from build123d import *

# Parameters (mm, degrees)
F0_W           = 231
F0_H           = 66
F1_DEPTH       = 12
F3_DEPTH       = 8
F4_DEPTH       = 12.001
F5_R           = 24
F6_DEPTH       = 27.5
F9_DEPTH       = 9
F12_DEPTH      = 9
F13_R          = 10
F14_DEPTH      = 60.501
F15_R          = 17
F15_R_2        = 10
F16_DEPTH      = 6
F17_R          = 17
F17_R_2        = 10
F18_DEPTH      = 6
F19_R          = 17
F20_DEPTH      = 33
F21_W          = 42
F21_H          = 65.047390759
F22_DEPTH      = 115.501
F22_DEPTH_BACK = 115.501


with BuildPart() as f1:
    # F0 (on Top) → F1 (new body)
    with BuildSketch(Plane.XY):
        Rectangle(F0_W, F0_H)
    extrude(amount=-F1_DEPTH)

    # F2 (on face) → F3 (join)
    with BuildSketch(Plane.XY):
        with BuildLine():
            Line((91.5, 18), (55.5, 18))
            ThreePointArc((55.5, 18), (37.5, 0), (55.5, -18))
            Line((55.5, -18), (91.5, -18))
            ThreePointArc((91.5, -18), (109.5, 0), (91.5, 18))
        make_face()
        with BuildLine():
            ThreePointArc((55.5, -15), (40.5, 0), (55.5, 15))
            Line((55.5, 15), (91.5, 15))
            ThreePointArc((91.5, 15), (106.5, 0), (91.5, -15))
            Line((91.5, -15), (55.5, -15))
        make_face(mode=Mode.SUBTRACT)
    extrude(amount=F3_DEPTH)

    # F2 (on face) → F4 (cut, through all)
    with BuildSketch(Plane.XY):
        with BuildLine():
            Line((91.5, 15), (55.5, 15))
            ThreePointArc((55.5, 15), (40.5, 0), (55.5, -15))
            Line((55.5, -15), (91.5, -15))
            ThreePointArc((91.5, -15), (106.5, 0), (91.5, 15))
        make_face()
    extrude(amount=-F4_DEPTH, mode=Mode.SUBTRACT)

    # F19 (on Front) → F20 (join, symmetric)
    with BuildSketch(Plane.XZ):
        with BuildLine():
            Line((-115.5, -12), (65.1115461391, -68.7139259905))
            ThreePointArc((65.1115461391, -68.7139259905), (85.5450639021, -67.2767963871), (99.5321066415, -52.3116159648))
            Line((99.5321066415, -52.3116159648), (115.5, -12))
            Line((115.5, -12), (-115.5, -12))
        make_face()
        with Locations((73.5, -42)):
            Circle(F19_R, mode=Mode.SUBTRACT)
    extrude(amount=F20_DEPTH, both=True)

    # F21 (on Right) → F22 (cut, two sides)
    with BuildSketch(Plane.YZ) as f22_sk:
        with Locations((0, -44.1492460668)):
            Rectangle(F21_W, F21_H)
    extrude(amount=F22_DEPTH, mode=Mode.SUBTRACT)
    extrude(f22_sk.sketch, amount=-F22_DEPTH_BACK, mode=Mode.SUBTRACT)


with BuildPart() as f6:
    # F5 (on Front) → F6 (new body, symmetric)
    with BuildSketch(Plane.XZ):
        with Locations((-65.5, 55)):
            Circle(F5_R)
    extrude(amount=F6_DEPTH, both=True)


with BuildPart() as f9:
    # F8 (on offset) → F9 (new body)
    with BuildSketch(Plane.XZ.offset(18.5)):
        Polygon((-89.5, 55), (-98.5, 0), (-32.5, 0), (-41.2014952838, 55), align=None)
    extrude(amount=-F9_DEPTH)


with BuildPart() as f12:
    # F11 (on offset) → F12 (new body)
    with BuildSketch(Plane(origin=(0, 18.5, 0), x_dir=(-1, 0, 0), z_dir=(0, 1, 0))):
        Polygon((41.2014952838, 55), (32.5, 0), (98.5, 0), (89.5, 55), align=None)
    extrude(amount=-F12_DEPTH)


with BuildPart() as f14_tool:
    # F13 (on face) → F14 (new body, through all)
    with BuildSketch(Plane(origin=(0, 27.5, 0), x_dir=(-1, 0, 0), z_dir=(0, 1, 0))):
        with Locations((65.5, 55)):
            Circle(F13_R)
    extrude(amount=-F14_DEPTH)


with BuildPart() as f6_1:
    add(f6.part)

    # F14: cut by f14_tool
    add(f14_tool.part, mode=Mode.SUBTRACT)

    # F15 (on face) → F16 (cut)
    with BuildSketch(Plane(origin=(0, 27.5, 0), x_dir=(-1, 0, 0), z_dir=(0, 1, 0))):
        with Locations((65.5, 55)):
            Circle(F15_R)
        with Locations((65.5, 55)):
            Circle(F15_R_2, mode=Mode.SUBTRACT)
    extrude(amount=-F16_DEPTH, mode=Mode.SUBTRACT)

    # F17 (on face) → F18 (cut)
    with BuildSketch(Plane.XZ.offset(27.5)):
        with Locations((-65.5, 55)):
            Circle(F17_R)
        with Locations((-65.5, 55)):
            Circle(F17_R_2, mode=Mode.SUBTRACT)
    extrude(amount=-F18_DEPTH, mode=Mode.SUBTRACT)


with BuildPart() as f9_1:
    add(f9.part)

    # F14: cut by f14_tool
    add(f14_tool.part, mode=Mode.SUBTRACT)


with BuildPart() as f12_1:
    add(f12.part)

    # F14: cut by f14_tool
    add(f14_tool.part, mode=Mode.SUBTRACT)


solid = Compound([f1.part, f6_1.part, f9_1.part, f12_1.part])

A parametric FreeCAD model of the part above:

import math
import FreeCAD as App
import Part
import Sketcher
Q = App.Units.Quantity


def add_polygon(sketch, points):
    """Adds a closed chain of lines whose ends are joined by coincident constraints."""
    first, n = sketch.GeometryCount, len(points)
    for a, b in zip(points, points[1:] + points[:1]):
        sketch.addGeometry(Part.LineSegment(App.Vector(*a, 0), App.Vector(*b, 0)), False)
    for i in range(n):
        sketch.addConstraint(Sketcher.Constraint("Coincident", first + i, 2, first + (i + 1) % n, 1))

doc = App.newDocument("Part")
body = doc.addObject("PartDesign::Body", "Body")

# Sketch on XY plane
sketch1 = doc.addObject("Sketcher::SketchObject", "Sketch")
body.addObject(sketch1)
sketch1.AttachmentSupport = (doc.XY_Plane, [""])
sketch1.MapMode = "FlatFace"
add_polygon(sketch1, [(-116, 33), (-116, -33), (116, -33), (116, 33)])  # lines 0-3
sketch1.addConstraint(Sketcher.Constraint("Vertical", 0))
sketch1.addConstraint(Sketcher.Constraint("Horizontal", 1))
sketch1.addConstraint(Sketcher.Constraint("Vertical", 2))
sketch1.addConstraint(Sketcher.Constraint("Horizontal", 3))
sketch1.addConstraint(Sketcher.Constraint("Symmetric", 0, 2, 2, 2, -1, 1))
sketch1.addConstraint(Sketcher.Constraint("DistanceX", 1, 1, 1, 2, Q("231 mm")))
sketch1.addConstraint(Sketcher.Constraint("DistanceY", 0, 2, 0, 1, Q("66 mm")))
pad1 = doc.addObject("PartDesign::Pad", "Pad")
body.addObject(pad1)
pad1.Profile = sketch1
pad1.Length = 12
pad1.Reversed = True

# Sketch on XY plane
sketch2 = doc.addObject("Sketcher::SketchObject", "Sketch001")
body.addObject(sketch2)
sketch2.AttachmentSupport = (doc.XY_Plane, [""])
sketch2.MapMode = "FlatFace"
sketch2.addGeometry(Part.LineSegment(App.Vector(92, 18, 0), App.Vector(56, 18, 0)), False)
sketch2.addGeometry(Part.ArcOfCircle(Part.Circle(App.Vector(56, 0, 0), App.Vector(0, 0, 1), 18), math.radians(90), math.radians(270)), False)
sketch2.addGeometry(Part.LineSegment(App.Vector(56, -18, 0), App.Vector(92, -18, 0)), False)
sketch2.addGeometry(Part.ArcOfCircle(Part.Circle(App.Vector(92, 0, 0), App.Vector(0, 0, 1), 18), math.radians(-90), math.radians(90)), False)
sketch2.addGeometry(Part.LineSegment(App.Vector(92, -15, 0), App.Vector(56, -15, 0)), False)
sketch2.addGeometry(Part.ArcOfCircle(Part.Circle(App.Vector(56, 0, 0), App.Vector(0, 0, 1), 15), math.radians(90), math.radians(270)), False)
sketch2.addGeometry(Part.LineSegment(App.Vector(56, 15, 0), App.Vector(92, 15, 0)), False)
sketch2.addGeometry(Part.ArcOfCircle(Part.Circle(App.Vector(92, 0, 0), App.Vector(0, 0, 1), 15), math.radians(-90), math.radians(90)), False)
sketch2.addConstraint(Sketcher.Constraint("Tangent", 0, 2, 1, 1))
sketch2.addConstraint(Sketcher.Constraint("Tangent", 1, 2, 2, 1))
sketch2.addConstraint(Sketcher.Constraint("Tangent", 2, 2, 3, 1))
sketch2.addConstraint(Sketcher.Constraint("Tangent", 3, 2, 0, 1))
sketch2.addConstraint(Sketcher.Constraint("Tangent", 4, 2, 5, 2))
sketch2.addConstraint(Sketcher.Constraint("Tangent", 5, 1, 6, 1))
sketch2.addConstraint(Sketcher.Constraint("Tangent", 6, 2, 7, 2))
sketch2.addConstraint(Sketcher.Constraint("Tangent", 7, 1, 4, 1))
sketch2.addConstraint(Sketcher.Constraint("Horizontal", 0))
sketch2.addConstraint(Sketcher.Constraint("Horizontal", 2))
sketch2.addConstraint(Sketcher.Constraint("Horizontal", 4))
sketch2.addConstraint(Sketcher.Constraint("Horizontal", 6))
sketch2.addConstraint(Sketcher.Constraint("Coincident", 5, 3, 1, 3))
sketch2.addConstraint(Sketcher.Constraint("PointOnObject", 1, 3, -1))
sketch2.addConstraint(Sketcher.Constraint("Vertical", 7, 3, 2, 2))
sketch2.addConstraint(Sketcher.Constraint("Radius", 1, Q("18 mm")))
sketch2.addConstraint(Sketcher.Constraint("Radius", 5, Q("15 mm")))
sketch2.addConstraint(Sketcher.Constraint("DistanceX", 0, 2, 0, 1, Q("36 mm")))
sketch2.addConstraint(Sketcher.Constraint("DistanceX", -1, 1, 1, 3, Q("55.5 mm")))
pad2 = doc.addObject("PartDesign::Pad", "Pad001")
body.addObject(pad2)
pad2.Profile = sketch2
pad2.Length = 8

# Sketch on XY plane
sketch3 = doc.addObject("Sketcher::SketchObject", "Sketch002")
body.addObject(sketch3)
sketch3.AttachmentSupport = (doc.XY_Plane, [""])
sketch3.MapMode = "FlatFace"
sketch3.addGeometry(Part.LineSegment(App.Vector(92, 15, 0), App.Vector(56, 15, 0)), False)
sketch3.addGeometry(Part.ArcOfCircle(Part.Circle(App.Vector(56, 0, 0), App.Vector(0, 0, 1), 15), math.radians(90), math.radians(270)), False)
sketch3.addGeometry(Part.LineSegment(App.Vector(56, -15, 0), App.Vector(92, -15, 0)), False)
sketch3.addGeometry(Part.ArcOfCircle(Part.Circle(App.Vector(92, 0, 0), App.Vector(0, 0, 1), 15), math.radians(-90), math.radians(90)), False)
sketch3.addConstraint(Sketcher.Constraint("Tangent", 0, 2, 1, 1))
sketch3.addConstraint(Sketcher.Constraint("Tangent", 1, 2, 2, 1))
sketch3.addConstraint(Sketcher.Constraint("Tangent", 2, 2, 3, 1))
sketch3.addConstraint(Sketcher.Constraint("Tangent", 3, 2, 0, 1))
sketch3.addConstraint(Sketcher.Constraint("Horizontal", 0))
sketch3.addConstraint(Sketcher.Constraint("Horizontal", 2))
sketch3.addConstraint(Sketcher.Constraint("PointOnObject", 1, 3, -1))
sketch3.addConstraint(Sketcher.Constraint("Radius", 1, Q("15 mm")))
sketch3.addConstraint(Sketcher.Constraint("DistanceX", 0, 2, 0, 1, Q("36 mm")))
sketch3.addConstraint(Sketcher.Constraint("DistanceX", -1, 1, 1, 3, Q("55.5 mm")))
pocket1 = doc.addObject("PartDesign::Pocket", "Pocket")
body.addObject(pocket1)
pocket1.Profile = sketch3
pocket1.Type = "ThroughAll"

# Sketch on XZ plane
sketch4 = doc.addObject("Sketcher::SketchObject", "Sketch003")
body.addObject(sketch4)
sketch4.AttachmentSupport = (doc.XZ_Plane, [""])
sketch4.MapMode = "FlatFace"
sketch4.addGeometry(Part.LineSegment(App.Vector(-116, -12, 0), App.Vector(65, -69, 0)), False)
sketch4.addGeometry(Part.ArcOfCircle(Part.Circle(App.Vector(74, -42, 0), App.Vector(0, 0, 1), 28), math.radians(-107), math.radians(-22)), False)
sketch4.addGeometry(Part.LineSegment(App.Vector(100, -52, 0), App.Vector(116, -12, 0)), False)
sketch4.addGeometry(Part.LineSegment(App.Vector(116, -12, 0), App.Vector(-116, -12, 0)), False)
sketch4.addGeometry(Part.Circle(App.Vector(74, -42, 0), App.Vector(0, 0, 1), 17), False)
sketch4.addConstraint(Sketcher.Constraint("Tangent", 0, 2, 1, 1))
sketch4.addConstraint(Sketcher.Constraint("Tangent", 1, 2, 2, 1))
sketch4.addConstraint(Sketcher.Constraint("Coincident", 2, 2, 3, 1))
sketch4.addConstraint(Sketcher.Constraint("Coincident", 3, 2, 0, 1))
sketch4.addConstraint(Sketcher.Constraint("Horizontal", 3))
sketch4.addConstraint(Sketcher.Constraint("Coincident", 4, 3, 1, 3))
sketch4.addConstraint(Sketcher.Constraint("Diameter", 4, Q("34 mm")))
sketch4.addConstraint(Sketcher.Constraint("Radius", 1, Q("28 mm")))
sketch4.addConstraint(Sketcher.Constraint("DistanceX", 3, 2, 3, 1, Q("231 mm")))
sketch4.addConstraint(Sketcher.Constraint("DistanceY", 1, 3, -1, 1, Q("42 mm")))
sketch4.addConstraint(Sketcher.Constraint("DistanceY", 2, 2, -1, 1, Q("12 mm")))
sketch4.addConstraint(Sketcher.Constraint("DistanceX", 1, 3, 2, 2, Q("42 mm")))
sketch4.addConstraint(Sketcher.Constraint("DistanceX", -1, 1, 1, 3, Q("73.5 mm")))
pad3 = doc.addObject("PartDesign::Pad", "Pad002")
body.addObject(pad3)
pad3.Profile = sketch4
pad3.Length = 66
pad3.Midplane = True

# Sketch on YZ plane
sketch5 = doc.addObject("Sketcher::SketchObject", "Sketch004")
body.addObject(sketch5)
sketch5.AttachmentSupport = (doc.YZ_Plane, [""])
sketch5.MapMode = "FlatFace"
add_polygon(sketch5, [(-21, -12), (-21, -77), (21, -77), (21, -12)])  # lines 0-3
sketch5.addConstraint(Sketcher.Constraint("Vertical", 0))
sketch5.addConstraint(Sketcher.Constraint("Horizontal", 1))
sketch5.addConstraint(Sketcher.Constraint("Vertical", 2))
sketch5.addConstraint(Sketcher.Constraint("Horizontal", 3))
sketch5.addConstraint(Sketcher.Constraint("DistanceX", 1, 1, 1, 2, Q("42 mm")))
sketch5.addConstraint(Sketcher.Constraint("DistanceX", 0, 2, -1, 1, Q("21 mm")))
sketch5.addConstraint(Sketcher.Constraint("DistanceY", 0, 2, 0, 1, Q("65.047391 mm")))
sketch5.addConstraint(Sketcher.Constraint("DistanceY", 0, 2, -1, 1, Q("76.672941 mm")))
pocket2 = doc.addObject("PartDesign::Pocket", "Pocket001")
body.addObject(pocket2)
pocket2.Profile = sketch5
pocket2.Type = "ThroughAll"
pocket2.Midplane = True
body2 = doc.addObject("PartDesign::Body", "Body001")

# Sketch on XZ plane
sketch6 = doc.addObject("Sketcher::SketchObject", "Sketch005")
body2.addObject(sketch6)
sketch6.AttachmentSupport = (doc.getObject("XZ_Plane001"), [""])
sketch6.MapMode = "FlatFace"
sketch6.addGeometry(Part.Circle(App.Vector(-66, 55, 0), App.Vector(0, 0, 1), 24), False)
sketch6.addConstraint(Sketcher.Constraint("Diameter", 0, Q("48 mm")))
sketch6.addConstraint(Sketcher.Constraint("DistanceY", -1, 1, 0, 3, Q("55 mm")))
sketch6.addConstraint(Sketcher.Constraint("DistanceX", 0, 3, -1, 1, Q("65.5 mm")))
pad4 = doc.addObject("PartDesign::Pad", "Pad003")
body2.addObject(pad4)
pad4.Profile = sketch6
pad4.Length = 55
pad4.Midplane = True
body3 = doc.addObject("PartDesign::Body", "Body002")

# Sketch on XZ plane
sketch7 = doc.addObject("Sketcher::SketchObject", "Sketch006")
body3.addObject(sketch7)
sketch7.AttachmentSupport = (doc.getObject("XZ_Plane002"), [""])
sketch7.MapMode = "FlatFace"
sketch7.AttachmentOffset = App.Placement(App.Vector(0, 0, 18.5), App.Rotation())
add_polygon(sketch7, [(-90, 55), (-98, 0), (-32, 0), (-41, 55)])  # lines 0-3
sketch7.addConstraint(Sketcher.Constraint("Horizontal", 1))
sketch7.addConstraint(Sketcher.Constraint("Horizontal", 3))
sketch7.addConstraint(Sketcher.Constraint("PointOnObject", 0, 2, -1))
sketch7.addConstraint(Sketcher.Constraint("DistanceX", 1, 1, 1, 2, Q("66 mm")))
sketch7.addConstraint(Sketcher.Constraint("DistanceY", -1, 1, 2, 2, Q("55 mm")))
sketch7.addConstraint(Sketcher.Constraint("DistanceX", 0, 2, 3, 2, Q("9 mm")))
sketch7.addConstraint(Sketcher.Constraint("DistanceX", 0, 2, -1, 1, Q("98.5 mm")))
sketch7.addConstraint(Sketcher.Constraint("DistanceX", 3, 2, 3, 1, Q("48.298505 mm")))
pad5 = doc.addObject("PartDesign::Pad", "Pad004")
body3.addObject(pad5)
pad5.Profile = sketch7
pad5.Length = 9
pad5.Reversed = True
body4 = doc.addObject("PartDesign::Body", "Body003")

# Sketch on XZ plane
sketch8 = doc.addObject("Sketcher::SketchObject", "Sketch007")
body4.addObject(sketch8)
sketch8.AttachmentSupport = (doc.getObject("XZ_Plane003"), [""])
sketch8.MapMode = "FlatFace"
sketch8.AttachmentOffset = App.Placement(App.Vector(0, 0, -18.5), App.Rotation())
add_polygon(sketch8, [(-41, 55), (-32, 0), (-98, 0), (-90, 55)])  # lines 0-3
sketch8.addConstraint(Sketcher.Constraint("Horizontal", 1))
sketch8.addConstraint(Sketcher.Constraint("Horizontal", 3))
sketch8.addConstraint(Sketcher.Constraint("PointOnObject", 0, 2, -1))
sketch8.addConstraint(Sketcher.Constraint("DistanceX", 1, 2, 1, 1, Q("66 mm")))
sketch8.addConstraint(Sketcher.Constraint("DistanceY", -1, 1, 2, 2, Q("55 mm")))
sketch8.addConstraint(Sketcher.Constraint("DistanceX", 1, 2, 2, 2, Q("9 mm")))
sketch8.addConstraint(Sketcher.Constraint("DistanceX", 0, 2, -1, 1, Q("32.5 mm")))
sketch8.addConstraint(Sketcher.Constraint("DistanceX", 3, 1, 3, 2, Q("48.298505 mm")))
pad6 = doc.addObject("PartDesign::Pad", "Pad005")
body4.addObject(pad6)
pad6.Profile = sketch8
pad6.Length = 9
body5 = doc.addObject("PartDesign::Body", "Body004")

# Sketch on XZ plane
sketch9 = doc.addObject("Sketcher::SketchObject", "Sketch008")
body5.addObject(sketch9)
sketch9.AttachmentSupport = (doc.getObject("XZ_Plane004"), [""])
sketch9.MapMode = "FlatFace"
sketch9.AttachmentOffset = App.Placement(App.Vector(0, 0, -27.5), App.Rotation())
sketch9.addGeometry(Part.Circle(App.Vector(-66, 55, 0), App.Vector(0, 0, 1), 10), False)
sketch9.addConstraint(Sketcher.Constraint("Diameter", 0, Q("20 mm")))
sketch9.addConstraint(Sketcher.Constraint("DistanceY", -1, 1, 0, 3, Q("55 mm")))
sketch9.addConstraint(Sketcher.Constraint("DistanceX", 0, 3, -1, 1, Q("65.5 mm")))
pad7 = doc.addObject("PartDesign::Pad", "Pad006")
body5.addObject(pad7)
pad7.Profile = sketch9
pad7.Length = 60.501
doc.recompute()

body6 = doc.addObject("PartDesign::Body", "Body005")
body6.BaseFeature = body5
boolean = doc.addObject("PartDesign::Boolean", "Boolean")
body2.addObject(boolean)
boolean.Type = "Cut"
boolean.addObjects([body6])
doc.recompute()

# Sketch on XZ plane
sketch10 = doc.addObject("Sketcher::SketchObject", "Sketch009")
body2.addObject(sketch10)
sketch10.AttachmentSupport = (doc.getObject("XZ_Plane001"), [""])
sketch10.MapMode = "FlatFace"
sketch10.AttachmentOffset = App.Placement(App.Vector(0, 0, -27.5), App.Rotation())
sketch10.addGeometry(Part.Circle(App.Vector(-66, 55, 0), App.Vector(0, 0, 1), 17), False)
sketch10.addGeometry(Part.Circle(App.Vector(-66, 55, 0), App.Vector(0, 0, 1), 10), False)
sketch10.addConstraint(Sketcher.Constraint("Coincident", 1, 3, 0, 3))
sketch10.addConstraint(Sketcher.Constraint("Diameter", 0, Q("34 mm")))
sketch10.addConstraint(Sketcher.Constraint("Diameter", 1, Q("20 mm")))
sketch10.addConstraint(Sketcher.Constraint("DistanceY", -1, 1, 0, 3, Q("55 mm")))
sketch10.addConstraint(Sketcher.Constraint("DistanceX", 0, 3, -1, 1, Q("65.5 mm")))
pocket3 = doc.addObject("PartDesign::Pocket", "Pocket002")
body2.addObject(pocket3)
pocket3.Profile = sketch10
pocket3.Length = 6
pocket3.Reversed = True

# Sketch on XZ plane
sketch11 = doc.addObject("Sketcher::SketchObject", "Sketch010")
body2.addObject(sketch11)
sketch11.AttachmentSupport = (doc.getObject("XZ_Plane001"), [""])
sketch11.MapMode = "FlatFace"
sketch11.AttachmentOffset = App.Placement(App.Vector(0, 0, 27.5), App.Rotation())
sketch11.addGeometry(Part.Circle(App.Vector(-66, 55, 0), App.Vector(0, 0, 1), 17), False)
sketch11.addGeometry(Part.Circle(App.Vector(-66, 55, 0), App.Vector(0, 0, 1), 10), False)
sketch11.addConstraint(Sketcher.Constraint("Coincident", 1, 3, 0, 3))
sketch11.addConstraint(Sketcher.Constraint("Diameter", 0, Q("34 mm")))
sketch11.addConstraint(Sketcher.Constraint("Diameter", 1, Q("20 mm")))
sketch11.addConstraint(Sketcher.Constraint("DistanceY", -1, 1, 0, 3, Q("55 mm")))
sketch11.addConstraint(Sketcher.Constraint("DistanceX", 0, 3, -1, 1, Q("65.5 mm")))
pocket4 = doc.addObject("PartDesign::Pocket", "Pocket003")
body2.addObject(pocket4)
pocket4.Profile = sketch11
pocket4.Length = 6
doc.recompute()

body7 = doc.addObject("PartDesign::Body", "Body006")
body7.BaseFeature = body5
boolean2 = doc.addObject("PartDesign::Boolean", "Boolean001")
body3.addObject(boolean2)
boolean2.Type = "Cut"
boolean2.addObjects([body7])
doc.recompute()

boolean3 = doc.addObject("PartDesign::Boolean", "Boolean002")
body4.addObject(boolean3)
boolean3.Type = "Cut"
boolean3.addObjects([body5])

doc.recompute()
